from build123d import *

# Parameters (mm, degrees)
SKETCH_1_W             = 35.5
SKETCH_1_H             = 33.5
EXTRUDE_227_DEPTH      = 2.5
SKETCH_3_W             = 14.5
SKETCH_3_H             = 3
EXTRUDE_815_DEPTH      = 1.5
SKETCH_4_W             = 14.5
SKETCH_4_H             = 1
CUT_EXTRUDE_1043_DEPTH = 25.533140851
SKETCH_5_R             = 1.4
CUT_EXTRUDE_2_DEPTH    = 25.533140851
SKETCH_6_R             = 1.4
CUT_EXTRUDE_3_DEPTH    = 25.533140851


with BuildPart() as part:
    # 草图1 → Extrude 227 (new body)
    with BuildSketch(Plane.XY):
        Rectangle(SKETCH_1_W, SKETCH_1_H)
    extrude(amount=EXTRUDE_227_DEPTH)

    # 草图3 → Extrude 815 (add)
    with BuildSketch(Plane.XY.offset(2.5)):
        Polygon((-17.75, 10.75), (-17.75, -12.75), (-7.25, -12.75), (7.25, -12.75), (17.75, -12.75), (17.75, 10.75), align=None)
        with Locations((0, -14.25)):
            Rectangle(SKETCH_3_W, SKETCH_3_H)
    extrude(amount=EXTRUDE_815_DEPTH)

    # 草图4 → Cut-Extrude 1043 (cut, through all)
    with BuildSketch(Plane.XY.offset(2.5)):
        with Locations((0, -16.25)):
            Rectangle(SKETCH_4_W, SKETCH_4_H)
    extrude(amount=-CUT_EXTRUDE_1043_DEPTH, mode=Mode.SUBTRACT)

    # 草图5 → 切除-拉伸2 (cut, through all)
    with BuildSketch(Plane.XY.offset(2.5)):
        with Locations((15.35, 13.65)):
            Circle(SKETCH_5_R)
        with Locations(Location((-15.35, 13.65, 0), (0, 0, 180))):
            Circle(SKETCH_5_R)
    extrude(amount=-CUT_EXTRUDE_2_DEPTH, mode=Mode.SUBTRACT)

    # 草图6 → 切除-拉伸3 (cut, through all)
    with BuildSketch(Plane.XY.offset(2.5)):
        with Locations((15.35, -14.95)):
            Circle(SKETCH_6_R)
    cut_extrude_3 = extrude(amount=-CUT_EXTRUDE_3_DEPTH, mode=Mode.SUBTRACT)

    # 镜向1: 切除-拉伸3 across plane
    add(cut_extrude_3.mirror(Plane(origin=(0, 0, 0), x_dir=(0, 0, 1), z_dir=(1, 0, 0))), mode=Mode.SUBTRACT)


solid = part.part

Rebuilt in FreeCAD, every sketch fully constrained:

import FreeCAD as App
import Part
import Sketcher

V = App.Vector


def add_polygon(sketch, points):
    """Adds a closed chain of lines whose ends are joined by coincident constraints."""
    first, n = sketch.GeometryCount, len(points)
    for a, b in zip(points, points[1:] + points[:1]):
        sketch.addGeometry(Part.LineSegment(App.Vector(*a, 0), App.Vector(*b, 0)), False)
    for i in range(n):
        sketch.addConstraint(Sketcher.Constraint("Coincident", first + i, 2, first + (i + 1) % n, 1))

doc = App.newDocument("Part")
params = doc.addObject("Spreadsheet::Sheet", "Params")
for row, (alias, value) in enumerate([
    ("sketch1_width", "35.5 mm"),
    ("sketch1_height", "33.5 mm"),
    ("pad1_length", "2.5 mm"),
    ("sketch2_height", "3 mm"),
    ("sketch2_width", "10.5 mm"),
    ("sketch2_width2", "14.5 mm"),
    ("sketch2_height2", "23.5 mm"),
    ("pad2_length", "1.5 mm"),
    ("sketch3_height", "1 mm"),
    ("sketch3_width", "14.5 mm"),
    ("sketch4_diameter", "2.8 mm"),
    ("sketch5_diameter", "2.8 mm"),
], start=1):
    params.set(f"A{row}", alias)
    params.set(f"B{row}", "=" + value)
    params.setAlias(f"B{row}", alias)

body = doc.addObject("PartDesign::Body", "Body")

sketch1 = body.newObject("Sketcher::SketchObject", "Sketch")
sketch1.AttachmentSupport = (doc.getObject("XY_Plane"), [""])
sketch1.MapMode = "FlatFace"
add_polygon(sketch1, [(-18, 17), (-18, -17), (18, -17), (18, 17)])
sketch1.addConstraint(Sketcher.Constraint("Vertical", 0))
sketch1.addConstraint(Sketcher.Constraint("Horizontal", 1))
sketch1.addConstraint(Sketcher.Constraint("Vertical", 2))
sketch1.addConstraint(Sketcher.Constraint("Horizontal", 3))
sketch1.addConstraint(Sketcher.Constraint("Symmetric", 0, 2, 2, 2, -1, 1))
sketch1.addConstraint(Sketcher.Constraint("DistanceX", 1, 1, 1, 2, 35.5))
sketch1.addConstraint(Sketcher.Constraint("DistanceY", 0, 2, 0, 1, 33.5))
sketch1.setExpression("Constraints[9]", "Params.sketch1_width")
sketch1.setExpression("Constraints[10]", "Params.sketch1_height")
pad1 = body.newObject("PartDesign::Pad", "Pad")
pad1.Profile = sketch1
pad1.setExpression("Length", "Params.pad1_length")

sketch2 = body.newObject("Sketcher::SketchObject", "Sketch001")
sketch2.AttachmentSupport = (doc.getObject("XY_Plane"), [""])
sketch2.MapMode = "FlatFace"
sketch2.AttachmentOffset = App.Placement(V(0, 0, 2.5), App.Rotation())
add_polygon(sketch2, [(-17.8, 10.8), (-17.8, -12.8), (-7.2, -12.8), (-7.2, -15.8), (7.2, -15.8), (7.2, -12.8), (17.8, -12.8), (17.8, 10.8)])
sketch2.addConstraint(Sketcher.Constraint("Vertical", 0))
sketch2.addConstraint(Sketcher.Constraint("Horizontal", 1))
sketch2.addConstraint(Sketcher.Constraint("Vertical", 2))
sketch2.addConstraint(Sketcher.Constraint("Horizontal", 3))
sketch2.addConstraint(Sketcher.Constraint("Vertical", 4))
sketch2.addConstraint(Sketcher.Constraint("Horizontal", 5))
sketch2.addConstraint(Sketcher.Constraint("Vertical", 6))
sketch2.addConstraint(Sketcher.Constraint("Horizontal", 7))
sketch2.addConstraint(Sketcher.Constraint("Symmetric", 1, 2, 4, 2, -2))
sketch2.addConstraint(Sketcher.Constraint("Equal", 1, 5))
sketch2.addConstraint(Sketcher.Constraint("DistanceY", 2, 2, 2, 1, 3.0))
sketch2.addConstraint(Sketcher.Constraint("DistanceX", 1, 1, 1, 2, 10.5))
sketch2.addConstraint(Sketcher.Constraint("DistanceX", 3, 1, 3, 2, 14.5))
sketch2.addConstraint(Sketcher.Constraint("DistanceY", 0, 2, 0, 1, 23.5))
sketch2.addConstraint(Sketcher.Constraint("DistanceY", 0, 2, -1, 1, 12.75))
sketch2.setExpression("Constraints[18]", "Params.sketch2_height")
sketch2.setExpression("Constraints[19]", "Params.sketch2_width")
sketch2.setExpression("Constraints[20]", "Params.sketch2_width2")
sketch2.setExpression("Constraints[21]", "Params.sketch2_height2")
pad2 = body.newObject("PartDesign::Pad", "Pad001")
pad2.Profile = sketch2
pad2.setExpression("Length", "Params.pad2_length")

sketch3 = body.newObject("Sketcher::SketchObject", "Sketch002")
sketch3.AttachmentSupport = (doc.getObject("XY_Plane"), [""])
sketch3.MapMode = "FlatFace"
sketch3.AttachmentOffset = App.Placement(V(0, 0, 2.5), App.Rotation())
add_polygon(sketch3, [(-7.2, -15.8), (-7.2, -16.8), (7.2, -16.8), (7.2, -15.8)])
sketch3.addConstraint(Sketcher.Constraint("Vertical", 0))
sketch3.addConstraint(Sketcher.Constraint("Horizontal", 1))
sketch3.addConstraint(Sketcher.Constraint("Vertical", 2))
sketch3.addConstraint(Sketcher.Constraint("Horizontal", 3))
sketch3.addConstraint(Sketcher.Constraint("DistanceY", 0, 2, 0, 1, 1.0))
sketch3.addConstraint(Sketcher.Constraint("DistanceX", 1, 1, 1, 2, 14.5))
sketch3.addConstraint(Sketcher.Constraint("DistanceX", 0, 2, -1, 1, 7.25))
sketch3.addConstraint(Sketcher.Constraint("DistanceY", 0, 2, -1, 1, 16.75))
sketch3.setExpression("Constraints[8]", "Params.sketch3_height")
sketch3.setExpression("Constraints[9]", "Params.sketch3_width")
pocket1 = body.newObject("PartDesign::Pocket", "Pocket")
pocket1.Profile = sketch3
pocket1.Type = "ThroughAll"

sketch4 = body.newObject("Sketcher::SketchObject", "Sketch003")
sketch4.AttachmentSupport = (doc.getObject("XY_Plane"), [""])
sketch4.MapMode = "FlatFace"
sketch4.AttachmentOffset = App.Placement(V(0, 0, 2.5), App.Rotation())
sketch4.addGeometry(Part.Circle(V(15.3, 13.7, 0), V(0, 0, 1), 1.4), False)
sketch4.addGeometry(Part.Circle(V(-15.3, 13.7, 0), V(0, 0, 1), 1.4), False)
sketch4.addConstraint(Sketcher.Constraint("Equal", 0, 1))
sketch4.addConstraint(Sketcher.Constraint("Symmetric", 0, 3, 1, 3, -2))
sketch4.addConstraint(Sketcher.Constraint("Diameter", 0, 2.8))
sketch4.addConstraint(Sketcher.Constraint("DistanceX", 1, 3, 0, 3, 30.7))
sketch4.addConstraint(Sketcher.Constraint("DistanceY", -1, 1, 0, 3, 13.65))
sketch4.setExpression("Constraints[2]", "Params.sketch4_diameter")
pocket2 = body.newObject("PartDesign::Pocket", "Pocket001")
pocket2.Profile = sketch4
pocket2.Type = "ThroughAll"

sketch5 = body.newObject("Sketcher::SketchObject", "Sketch004")
sketch5.AttachmentSupport = (doc.getObject("XY_Plane"), [""])
sketch5.MapMode = "FlatFace"
sketch5.AttachmentOffset = App.Placement(V(0, 0, 2.5), App.Rotation())
sketch5.addGeometry(Part.Circle(V(15.3, -14.9, 0), V(0, 0, 1), 1.4), False)
sketch5.addConstraint(Sketcher.Constraint("Diameter", 0, 2.8))
sketch5.addConstraint(Sketcher.Constraint("DistanceX", -1, 1, 0, 3, 15.35))
sketch5.addConstraint(Sketcher.Constraint("DistanceY", 0, 3, -1, 1, 14.95))
sketch5.setExpression("Constraints[0]", "Params.sketch5_diameter")
pocket3 = body.newObject("PartDesign::Pocket", "Pocket002")
pocket3.Profile = sketch5
pocket3.Type = "ThroughAll"
doc.recompute()

mirrored = body.newObject("PartDesign::Mirrored", "Mirrored")
mirrored.Originals = [pocket3]
mirrored.MirrorPlane = (doc.getObject("YZ_Plane"), [""])
body.Tip = mirrored

doc.recompute()
